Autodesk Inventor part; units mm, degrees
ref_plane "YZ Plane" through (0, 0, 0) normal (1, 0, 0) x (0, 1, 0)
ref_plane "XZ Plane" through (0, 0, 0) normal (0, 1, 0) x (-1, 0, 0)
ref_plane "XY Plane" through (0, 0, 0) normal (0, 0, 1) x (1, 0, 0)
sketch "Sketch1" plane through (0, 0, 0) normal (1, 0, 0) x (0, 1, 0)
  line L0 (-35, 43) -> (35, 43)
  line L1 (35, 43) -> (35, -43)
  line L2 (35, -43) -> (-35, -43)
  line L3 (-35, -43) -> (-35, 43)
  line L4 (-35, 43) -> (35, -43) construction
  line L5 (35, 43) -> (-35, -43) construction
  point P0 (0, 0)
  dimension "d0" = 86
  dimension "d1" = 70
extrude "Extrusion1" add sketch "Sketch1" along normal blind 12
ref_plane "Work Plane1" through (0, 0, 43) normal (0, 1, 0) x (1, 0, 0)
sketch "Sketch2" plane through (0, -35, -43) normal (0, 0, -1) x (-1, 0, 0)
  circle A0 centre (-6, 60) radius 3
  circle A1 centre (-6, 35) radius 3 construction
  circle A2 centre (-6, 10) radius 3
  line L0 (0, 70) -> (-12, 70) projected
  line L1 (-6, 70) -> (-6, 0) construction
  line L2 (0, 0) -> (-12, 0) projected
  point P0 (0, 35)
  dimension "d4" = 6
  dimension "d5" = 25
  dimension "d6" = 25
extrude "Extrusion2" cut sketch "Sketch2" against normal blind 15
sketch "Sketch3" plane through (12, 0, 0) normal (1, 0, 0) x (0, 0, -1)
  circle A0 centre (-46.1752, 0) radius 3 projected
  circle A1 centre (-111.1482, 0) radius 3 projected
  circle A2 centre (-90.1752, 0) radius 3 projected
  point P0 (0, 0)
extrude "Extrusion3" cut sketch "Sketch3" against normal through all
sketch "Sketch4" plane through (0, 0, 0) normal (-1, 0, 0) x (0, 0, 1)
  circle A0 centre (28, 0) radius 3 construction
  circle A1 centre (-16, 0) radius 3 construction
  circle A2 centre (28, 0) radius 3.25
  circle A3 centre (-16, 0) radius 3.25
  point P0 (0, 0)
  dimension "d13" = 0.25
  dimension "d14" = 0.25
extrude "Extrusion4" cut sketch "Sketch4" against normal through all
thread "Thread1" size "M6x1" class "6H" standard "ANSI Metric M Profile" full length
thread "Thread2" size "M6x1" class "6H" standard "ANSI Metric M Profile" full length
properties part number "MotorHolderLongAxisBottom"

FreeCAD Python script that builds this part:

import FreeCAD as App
import Part
import Sketcher
from FreeCAD import Vector

doc = App.newDocument("Part")
params = doc.addObject("Spreadsheet::Sheet", "Params")
for row, (alias, value) in enumerate([
    ("sketch1_width", "70 mm"),
    ("sketch1_height", "86 mm"),
    ("pad1_length", "12 mm"),
    ("sketch2_diameter", "6 mm"),
    ("pocket1_length", "15 mm"),
    ("sketch3_diameter", "6 mm"),
    ("sketch4_diameter", "6.5 mm"),
], start=1):
    params.set(f"A{row}", alias)
    params.set(f"B{row}", "=" + value)
    params.setAlias(f"B{row}", alias)

body = doc.addObject("PartDesign::Body", "Body")

sketch1 = body.newObject("Sketcher::SketchObject", "Sketch")
sketch1.AttachmentSupport = (doc.getObject("YZ_Plane"), [""])
sketch1.MapMode = "FlatFace"
sketch1.addGeometry(Part.LineSegment(Vector(35, 43, 0), Vector(-35, 43, 0)), False)
sketch1.addGeometry(Part.LineSegment(Vector(-35, 43, 0), Vector(-35, -43, 0)), False)
sketch1.addGeometry(Part.LineSegment(Vector(-35, -43, 0), Vector(35, -43, 0)), False)
sketch1.addGeometry(Part.LineSegment(Vector(35, -43, 0), Vector(35, 43, 0)), False)
sketch1.addConstraint(Sketcher.Constraint("Coincident", 0, 2, 1, 1))
sketch1.addConstraint(Sketcher.Constraint("Coincident", 1, 2, 2, 1))
sketch1.addConstraint(Sketcher.Constraint("Coincident", 2, 2, 3, 1))
sketch1.addConstraint(Sketcher.Constraint("Coincident", 3, 2, 0, 1))
sketch1.addConstraint(Sketcher.Constraint("Horizontal", 0))
sketch1.addConstraint(Sketcher.Constraint("Vertical", 1))
sketch1.addConstraint(Sketcher.Constraint("Horizontal", 2))
sketch1.addConstraint(Sketcher.Constraint("Vertical", 3))
sketch1.addConstraint(Sketcher.Constraint("Symmetric", 0, 2, 2, 2, -1, 1))
sketch1.addConstraint(Sketcher.Constraint("DistanceX", 0, 2, 0, 1, 70.0))
sketch1.addConstraint(Sketcher.Constraint("DistanceY", 1, 2, 1, 1, 86.0))
sketch1.setExpression("Constraints[9]", "Params.sketch1_width")
sketch1.setExpression("Constraints[10]", "Params.sketch1_height")
pad1 = body.newObject("PartDesign::Pad", "Pad")
pad1.Profile = sketch1
pad1.setExpression("Length", "Params.pad1_length")

sketch2 = body.newObject("Sketcher::SketchObject", "Sketch001")
sketch2.AttachmentSupport = (doc.getObject("XY_Plane"), [""])
sketch2.MapMode = "FlatFace"
sketch2.AttachmentOffset = App.Placement(Vector(0, 0, -43), App.Rotation())
sketch2.addGeometry(Part.Circle(Vector(6, 25, 0), Vector(0, 0, 1), 3), False)
sketch2.addGeometry(Part.Circle(Vector(6, -25, 0), Vector(0, 0, 1), 3), False)
sketch2.addConstraint(Sketcher.Constraint("Equal", 0, 1))
sketch2.addConstraint(Sketcher.Constraint("Symmetric", 0, 3, 1, 3, -1))
sketch2.addConstraint(Sketcher.Constraint("Diameter", 0, 6.0))
sketch2.addConstraint(Sketcher.Constraint("DistanceX", -1, 1, 0, 3, 6.0))
sketch2.addConstraint(Sketcher.Constraint("DistanceY", -1, 1, 0, 3, 25.0))
sketch2.setExpression("Constraints[2]", "Params.sketch2_diameter")
pocket1 = body.newObject("PartDesign::Pocket", "Pocket")
pocket1.Profile = sketch2
pocket1.setExpression("Length", "Params.pocket1_length")
pocket1.Reversed = True

sketch3 = body.newObject("Sketcher::SketchObject", "Sketch002")
sketch3.AttachmentSupport = (doc.getObject("YZ_Plane"), [""])
sketch3.MapMode = "FlatFace"
sketch3.AttachmentOffset = App.Placement(Vector(0, 0, 12), App.Rotation())
sketch3.addGeometry(Part.Circle(Vector(0, 46.2, 0), Vector(0, 0, 1), 3), False)
sketch3.addGeometry(Part.Circle(Vector(0, 111.1, 0), Vector(0, 0, 1), 3), False)
sketch3.addGeometry(Part.Circle(Vector(0, 90.2, 0), Vector(0, 0, 1), 3), False)
sketch3.addConstraint(Sketcher.Constraint("Equal", 0, 1))
sketch3.addConstraint(Sketcher.Constraint("Equal", 1, 2))
sketch3.addConstraint(Sketcher.Constraint("PointOnObject", 0, 3, -2))
sketch3.addConstraint(Sketcher.Constraint("PointOnObject", 1, 3, -2))
sketch3.addConstraint(Sketcher.Constraint("PointOnObject", 2, 3, -2))
sketch3.addConstraint(Sketcher.Constraint("Diameter", 0, 6.0))
sketch3.addConstraint(Sketcher.Constraint("DistanceY", 0, 3, 2, 3, 44.0))
sketch3.addConstraint(Sketcher.Constraint("DistanceY", 0, 3, 1, 3, 64.973))
sketch3.addConstraint(Sketcher.Constraint("DistanceY", -1, 1, 0, 3, 46.1752))
sketch3.setExpression("Constraints[5]", "Params.sketch3_diameter")
pocket2 = body.newObject("PartDesign::Pocket", "Pocket001")
pocket2.Profile = sketch3
pocket2.Type = "ThroughAll"

sketch4 = body.newObject("Sketcher::SketchObject", "Sketch003")
sketch4.AttachmentSupport = (doc.getObject("YZ_Plane"), [""])
sketch4.MapMode = "FlatFace"
sketch4.addGeometry(Part.Circle(Vector(0, 28, 0), Vector(0, 0, 1), 3.2), False)
sketch4.addGeometry(Part.Circle(Vector(0, -16, 0), Vector(0, 0, 1), 3.2), False)
sketch4.addConstraint(Sketcher.Constraint("Equal", 0, 1))
sketch4.addConstraint(Sketcher.Constraint("PointOnObject", 0, 3, -2))
sketch4.addConstraint(Sketcher.Constraint("PointOnObject", 1, 3, -2))
sketch4.addConstraint(Sketcher.Constraint("Diameter", 0, 6.5))
sketch4.addConstraint(Sketcher.Constraint("DistanceY", -1, 1, 0, 3, 28.0))
sketch4.addConstraint(Sketcher.Constraint("DistanceY", 1, 3, -1, 1, 16.0))
sketch4.setExpression("Constraints[3]", "Params.sketch4_diameter")
pocket3 = body.newObject("PartDesign::Pocket", "Pocket002")
pocket3.Profile = sketch4
pocket3.Type = "ThroughAll"
pocket3.Reversed = True

doc.recompute()
